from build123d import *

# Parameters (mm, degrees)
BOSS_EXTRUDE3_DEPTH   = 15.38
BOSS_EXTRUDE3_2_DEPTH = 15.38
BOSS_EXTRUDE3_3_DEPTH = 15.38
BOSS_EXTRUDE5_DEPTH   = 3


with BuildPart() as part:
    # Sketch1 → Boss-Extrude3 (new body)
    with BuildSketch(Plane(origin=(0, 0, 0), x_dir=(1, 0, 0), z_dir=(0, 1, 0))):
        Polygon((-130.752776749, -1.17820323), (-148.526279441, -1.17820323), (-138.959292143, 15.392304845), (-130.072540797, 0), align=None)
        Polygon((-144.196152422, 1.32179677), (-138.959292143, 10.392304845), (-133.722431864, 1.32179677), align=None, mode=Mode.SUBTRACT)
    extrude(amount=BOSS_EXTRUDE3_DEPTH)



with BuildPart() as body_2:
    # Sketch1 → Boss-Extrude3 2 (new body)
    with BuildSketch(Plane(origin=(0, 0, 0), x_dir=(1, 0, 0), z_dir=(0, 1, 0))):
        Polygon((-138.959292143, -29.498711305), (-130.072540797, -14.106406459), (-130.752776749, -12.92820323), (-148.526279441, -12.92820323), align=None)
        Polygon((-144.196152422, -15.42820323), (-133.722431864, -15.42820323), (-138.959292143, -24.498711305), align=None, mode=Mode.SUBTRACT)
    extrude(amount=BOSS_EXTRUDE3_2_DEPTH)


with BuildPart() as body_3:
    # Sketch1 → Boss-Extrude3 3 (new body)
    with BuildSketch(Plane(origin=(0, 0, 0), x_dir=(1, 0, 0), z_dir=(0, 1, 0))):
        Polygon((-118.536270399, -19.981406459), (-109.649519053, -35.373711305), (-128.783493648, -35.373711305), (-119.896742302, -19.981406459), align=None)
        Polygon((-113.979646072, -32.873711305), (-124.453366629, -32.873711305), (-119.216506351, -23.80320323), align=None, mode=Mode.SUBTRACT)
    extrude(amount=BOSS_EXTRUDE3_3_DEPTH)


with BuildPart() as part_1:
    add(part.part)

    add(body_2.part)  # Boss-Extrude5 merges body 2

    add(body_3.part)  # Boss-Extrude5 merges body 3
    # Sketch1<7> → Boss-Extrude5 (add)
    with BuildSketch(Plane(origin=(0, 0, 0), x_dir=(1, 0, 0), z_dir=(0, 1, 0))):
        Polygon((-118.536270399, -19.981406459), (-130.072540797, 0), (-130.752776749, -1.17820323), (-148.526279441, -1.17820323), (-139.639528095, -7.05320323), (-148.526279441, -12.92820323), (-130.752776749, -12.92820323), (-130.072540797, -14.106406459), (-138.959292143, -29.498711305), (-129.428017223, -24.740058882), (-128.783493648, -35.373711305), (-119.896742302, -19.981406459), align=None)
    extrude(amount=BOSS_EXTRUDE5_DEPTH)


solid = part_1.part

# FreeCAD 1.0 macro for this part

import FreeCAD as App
import Part
import Sketcher
from FreeCAD import Vector
Q = App.Units.Quantity


def add_polygon(sketch, points):
    """Adds a closed chain of lines whose ends are joined by coincident constraints."""
    first, n = sketch.GeometryCount, len(points)
    for a, b in zip(points, points[1:] + points[:1]):
        sketch.addGeometry(Part.LineSegment(App.Vector(*a, 0), App.Vector(*b, 0)), False)
    for i in range(n):
        sketch.addConstraint(Sketcher.Constraint("Coincident", first + i, 2, first + (i + 1) % n, 1))

doc = App.newDocument("Part")
body = doc.addObject("PartDesign::Body", "Body")

sketch1 = doc.addObject("Sketcher::SketchObject", "Sketch")
body.addObject(sketch1)
sketch1.AttachmentSupport = (doc.XZ_Plane, [""])
sketch1.MapMode = "FlatFace"
add_polygon(sketch1, [(-148.5, 1.2), (-130.8, 1.2), (-130.1, 0), (-139, -15.4)])
add_polygon(sketch1, [(-144.2, -1.3), (-139, -10.4), (-133.7, -1.3)])
sketch1.addConstraint([
    Sketcher.Constraint("Horizontal", 0),
    Sketcher.Constraint("Horizontal", 6),
    Sketcher.Constraint("PointOnObject", 1, 2, -1),
    Sketcher.Constraint("Parallel", 1, 3),
    Sketcher.Constraint("Parallel", 3, 4),
    Sketcher.Constraint("Parallel", 2, 5),
    Sketcher.Constraint("Vertical", 2, 2, 4, 2),
    Sketcher.Constraint("Equal", 4, 5),
    Sketcher.Constraint("Angle", 1, Q("-60 deg")),
    Sketcher.Constraint("DistanceY", 2, 2, 4, 2, Q("5 mm")),
    Sketcher.Constraint("DistanceY", 5, 2, 0, 2, Q("2.5 mm")),
    Sketcher.Constraint("DistanceX", 6, 2, 6, 1, Q("10.473721 mm")),
    Sketcher.Constraint("Distance", 1, Q("1.360472 mm")),
    Sketcher.Constraint("DistanceX", 1, 2, -1, 1, Q("130.072541 mm")),
])
pad1 = doc.addObject("PartDesign::Pad", "Pad")
body.addObject(pad1)
pad1.Profile = sketch1
pad1.Length = 15.38
pad1.Reversed = True
body2 = doc.addObject("PartDesign::Body", "Body001")

sketch2 = doc.addObject("Sketcher::SketchObject", "Sketch001")
body2.addObject(sketch2)
sketch2.AttachmentSupport = (doc.getObject("XZ_Plane001"), [""])
sketch2.MapMode = "FlatFace"
add_polygon(sketch2, [(-139, 29.5), (-130.1, 14.1), (-130.8, 12.9), (-148.5, 12.9)])
add_polygon(sketch2, [(-139, 24.5), (-144.2, 15.4), (-133.7, 15.4)])
sketch2.addConstraint([
    Sketcher.Constraint("Horizontal", 2),
    Sketcher.Constraint("Horizontal", 5),
    Sketcher.Constraint("Parallel", 1, 3),
    Sketcher.Constraint("Parallel", 3, 4),
    Sketcher.Constraint("Parallel", 0, 6),
    Sketcher.Constraint("Vertical", 3, 2, 6, 2),
    Sketcher.Constraint("Equal", 4, 6),
    Sketcher.Constraint("Angle", 0, Q("-60 deg")),
    Sketcher.Constraint("DistanceY", 6, 2, 3, 2, Q("5 mm")),
    Sketcher.Constraint("DistanceY", 2, 2, 4, 2, Q("2.5 mm")),
    Sketcher.Constraint("DistanceX", 5, 1, 5, 2, Q("10.473721 mm")),
    Sketcher.Constraint("Distance", 1, Q("1.360472 mm")),
    Sketcher.Constraint("DistanceX", 0, 2, -1, 1, Q("130.072541 mm")),
    Sketcher.Constraint("DistanceY", -1, 1, 3, 2, Q("29.498711 mm")),
])
pad2 = doc.addObject("PartDesign::Pad", "Pad001")
body2.addObject(pad2)
pad2.Profile = sketch2
pad2.Length = 15.38
pad2.Reversed = True
body3 = doc.addObject("PartDesign::Body", "Body002")

sketch3 = doc.addObject("Sketcher::SketchObject", "Sketch002")
body3.addObject(sketch3)
sketch3.AttachmentSupport = (doc.getObject("XZ_Plane002"), [""])
sketch3.MapMode = "FlatFace"
add_polygon(sketch3, [(-109.6, 35.4), (-118.5, 20), (-119.9, 20), (-128.8, 35.4)])
add_polygon(sketch3, [(-114, 32.9), (-124.5, 32.9), (-119.2, 23.8)])
sketch3.addConstraint([
    Sketcher.Constraint("Horizontal", 1),
    Sketcher.Constraint("Horizontal", 3),
    Sketcher.Constraint("Horizontal", 4),
    Sketcher.Constraint("Parallel", 2, 5),
    Sketcher.Constraint("Parallel", 0, 6),
    Sketcher.Constraint("Equal", 0, 2),
    Sketcher.Constraint("Angle", 0, Q("-120 deg")),
    Sketcher.Constraint("DistanceY", 4, 2, 2, 2, Q("2.5 mm")),
    Sketcher.Constraint("DistanceX", 1, 2, 1, 1, Q("1.360472 mm")),
    Sketcher.Constraint("DistanceX", 4, 2, 4, 1, Q("10.473721 mm")),
    Sketcher.Constraint("DistanceX", 3, 1, 3, 2, Q("19.133975 mm")),
    Sketcher.Constraint("DistanceX", 0, 2, -1, 1, Q("118.53627 mm")),
    Sketcher.Constraint("DistanceY", -1, 1, 2, 2, Q("35.373711 mm")),
    Sketcher.Constraint("DistanceX", 4, 2, -1, 1, Q("124.453367 mm")),
])
pad3 = doc.addObject("PartDesign::Pad", "Pad002")
body3.addObject(pad3)
pad3.Profile = sketch3
pad3.Length = 15.38
pad3.Reversed = True
body.AllowCompound = True
doc.recompute()

boolean = doc.addObject("PartDesign::Boolean", "Boolean")
body.addObject(boolean)
boolean.Type = "Fuse"
boolean.addObjects([body2])
doc.recompute()

boolean2 = doc.addObject("PartDesign::Boolean", "Boolean001")
body.addObject(boolean2)
boolean2.Type = "Fuse"
boolean2.addObjects([body3])

sketch4 = doc.addObject("Sketcher::SketchObject", "Sketch003")
body.addObject(sketch4)
sketch4.AttachmentSupport = (doc.XZ_Plane, [""])
sketch4.MapMode = "FlatFace"
add_polygon(sketch4, [(-118.5, 20), (-130.1, 0), (-130.8, 1.2), (-148.5, 1.2), (-139.6, 7.1), (-148.5, 12.9), (-130.8, 12.9), (-130.1, 14.1), (-139, 29.5), (-129.4, 24.7), (-128.8, 35.4), (-119.9, 20)])
sketch4.addConstraint([
    Sketcher.Constraint("Horizontal", 2),
    Sketcher.Constraint("Horizontal", 5),
    Sketcher.Constraint("Horizontal", 11),
    Sketcher.Constraint("PointOnObject", 0, 2, -1),
    Sketcher.Constraint("Parallel", 0, 6),
    Sketcher.Constraint("Parallel", 1, 7),
    Sketcher.Constraint("Parallel", 7, 10),
    Sketcher.Constraint("Vertical", 2, 2, 4, 2),
    Sketcher.Constraint("Vertical", 1, 2, 5, 2),
    Sketcher.Constraint("Vertical", 0, 2, 6, 2),
    Sketcher.Constraint("Equal", 3, 4),
    Sketcher.Constraint("Equal", 1, 6),
    Sketcher.Constraint("Equal", 4, 8),
    Sketcher.Constraint("Equal", 8, 9),
    Sketcher.Constraint("Equal", 7, 10),
    Sketcher.Constraint("Angle", 0, Q("-120 deg")),
    Sketcher.Constraint("DistanceY", 2, 2, 4, 2, Q("11.75 mm")),
    Sketcher.Constraint("DistanceY", 7, 2, 9, 2, Q("5.875 mm")),
    Sketcher.Constraint("DistanceX", 11, 1, 11, 2, Q("1.360472 mm")),
    Sketcher.Constraint("DistanceX", 7, 2, 9, 2, Q("10.175798 mm")),
    Sketcher.Constraint("DistanceX", 2, 2, 2, 1, Q("17.773503 mm")),
    Sketcher.Constraint("DistanceX", 0, 2, -1, 1, Q("130.072541 mm")),
    Sketcher.Constraint("DistanceX", 3, 2, -1, 1, Q("139.639528 mm")),
    Sketcher.Constraint("DistanceY", -1, 1, 7, 2, Q("29.498711 mm")),
])
pad4 = doc.addObject("PartDesign::Pad", "Pad003")
body.addObject(pad4)
pad4.Profile = sketch4
pad4.Length = 3
pad4.Reversed = True

doc.recompute()
